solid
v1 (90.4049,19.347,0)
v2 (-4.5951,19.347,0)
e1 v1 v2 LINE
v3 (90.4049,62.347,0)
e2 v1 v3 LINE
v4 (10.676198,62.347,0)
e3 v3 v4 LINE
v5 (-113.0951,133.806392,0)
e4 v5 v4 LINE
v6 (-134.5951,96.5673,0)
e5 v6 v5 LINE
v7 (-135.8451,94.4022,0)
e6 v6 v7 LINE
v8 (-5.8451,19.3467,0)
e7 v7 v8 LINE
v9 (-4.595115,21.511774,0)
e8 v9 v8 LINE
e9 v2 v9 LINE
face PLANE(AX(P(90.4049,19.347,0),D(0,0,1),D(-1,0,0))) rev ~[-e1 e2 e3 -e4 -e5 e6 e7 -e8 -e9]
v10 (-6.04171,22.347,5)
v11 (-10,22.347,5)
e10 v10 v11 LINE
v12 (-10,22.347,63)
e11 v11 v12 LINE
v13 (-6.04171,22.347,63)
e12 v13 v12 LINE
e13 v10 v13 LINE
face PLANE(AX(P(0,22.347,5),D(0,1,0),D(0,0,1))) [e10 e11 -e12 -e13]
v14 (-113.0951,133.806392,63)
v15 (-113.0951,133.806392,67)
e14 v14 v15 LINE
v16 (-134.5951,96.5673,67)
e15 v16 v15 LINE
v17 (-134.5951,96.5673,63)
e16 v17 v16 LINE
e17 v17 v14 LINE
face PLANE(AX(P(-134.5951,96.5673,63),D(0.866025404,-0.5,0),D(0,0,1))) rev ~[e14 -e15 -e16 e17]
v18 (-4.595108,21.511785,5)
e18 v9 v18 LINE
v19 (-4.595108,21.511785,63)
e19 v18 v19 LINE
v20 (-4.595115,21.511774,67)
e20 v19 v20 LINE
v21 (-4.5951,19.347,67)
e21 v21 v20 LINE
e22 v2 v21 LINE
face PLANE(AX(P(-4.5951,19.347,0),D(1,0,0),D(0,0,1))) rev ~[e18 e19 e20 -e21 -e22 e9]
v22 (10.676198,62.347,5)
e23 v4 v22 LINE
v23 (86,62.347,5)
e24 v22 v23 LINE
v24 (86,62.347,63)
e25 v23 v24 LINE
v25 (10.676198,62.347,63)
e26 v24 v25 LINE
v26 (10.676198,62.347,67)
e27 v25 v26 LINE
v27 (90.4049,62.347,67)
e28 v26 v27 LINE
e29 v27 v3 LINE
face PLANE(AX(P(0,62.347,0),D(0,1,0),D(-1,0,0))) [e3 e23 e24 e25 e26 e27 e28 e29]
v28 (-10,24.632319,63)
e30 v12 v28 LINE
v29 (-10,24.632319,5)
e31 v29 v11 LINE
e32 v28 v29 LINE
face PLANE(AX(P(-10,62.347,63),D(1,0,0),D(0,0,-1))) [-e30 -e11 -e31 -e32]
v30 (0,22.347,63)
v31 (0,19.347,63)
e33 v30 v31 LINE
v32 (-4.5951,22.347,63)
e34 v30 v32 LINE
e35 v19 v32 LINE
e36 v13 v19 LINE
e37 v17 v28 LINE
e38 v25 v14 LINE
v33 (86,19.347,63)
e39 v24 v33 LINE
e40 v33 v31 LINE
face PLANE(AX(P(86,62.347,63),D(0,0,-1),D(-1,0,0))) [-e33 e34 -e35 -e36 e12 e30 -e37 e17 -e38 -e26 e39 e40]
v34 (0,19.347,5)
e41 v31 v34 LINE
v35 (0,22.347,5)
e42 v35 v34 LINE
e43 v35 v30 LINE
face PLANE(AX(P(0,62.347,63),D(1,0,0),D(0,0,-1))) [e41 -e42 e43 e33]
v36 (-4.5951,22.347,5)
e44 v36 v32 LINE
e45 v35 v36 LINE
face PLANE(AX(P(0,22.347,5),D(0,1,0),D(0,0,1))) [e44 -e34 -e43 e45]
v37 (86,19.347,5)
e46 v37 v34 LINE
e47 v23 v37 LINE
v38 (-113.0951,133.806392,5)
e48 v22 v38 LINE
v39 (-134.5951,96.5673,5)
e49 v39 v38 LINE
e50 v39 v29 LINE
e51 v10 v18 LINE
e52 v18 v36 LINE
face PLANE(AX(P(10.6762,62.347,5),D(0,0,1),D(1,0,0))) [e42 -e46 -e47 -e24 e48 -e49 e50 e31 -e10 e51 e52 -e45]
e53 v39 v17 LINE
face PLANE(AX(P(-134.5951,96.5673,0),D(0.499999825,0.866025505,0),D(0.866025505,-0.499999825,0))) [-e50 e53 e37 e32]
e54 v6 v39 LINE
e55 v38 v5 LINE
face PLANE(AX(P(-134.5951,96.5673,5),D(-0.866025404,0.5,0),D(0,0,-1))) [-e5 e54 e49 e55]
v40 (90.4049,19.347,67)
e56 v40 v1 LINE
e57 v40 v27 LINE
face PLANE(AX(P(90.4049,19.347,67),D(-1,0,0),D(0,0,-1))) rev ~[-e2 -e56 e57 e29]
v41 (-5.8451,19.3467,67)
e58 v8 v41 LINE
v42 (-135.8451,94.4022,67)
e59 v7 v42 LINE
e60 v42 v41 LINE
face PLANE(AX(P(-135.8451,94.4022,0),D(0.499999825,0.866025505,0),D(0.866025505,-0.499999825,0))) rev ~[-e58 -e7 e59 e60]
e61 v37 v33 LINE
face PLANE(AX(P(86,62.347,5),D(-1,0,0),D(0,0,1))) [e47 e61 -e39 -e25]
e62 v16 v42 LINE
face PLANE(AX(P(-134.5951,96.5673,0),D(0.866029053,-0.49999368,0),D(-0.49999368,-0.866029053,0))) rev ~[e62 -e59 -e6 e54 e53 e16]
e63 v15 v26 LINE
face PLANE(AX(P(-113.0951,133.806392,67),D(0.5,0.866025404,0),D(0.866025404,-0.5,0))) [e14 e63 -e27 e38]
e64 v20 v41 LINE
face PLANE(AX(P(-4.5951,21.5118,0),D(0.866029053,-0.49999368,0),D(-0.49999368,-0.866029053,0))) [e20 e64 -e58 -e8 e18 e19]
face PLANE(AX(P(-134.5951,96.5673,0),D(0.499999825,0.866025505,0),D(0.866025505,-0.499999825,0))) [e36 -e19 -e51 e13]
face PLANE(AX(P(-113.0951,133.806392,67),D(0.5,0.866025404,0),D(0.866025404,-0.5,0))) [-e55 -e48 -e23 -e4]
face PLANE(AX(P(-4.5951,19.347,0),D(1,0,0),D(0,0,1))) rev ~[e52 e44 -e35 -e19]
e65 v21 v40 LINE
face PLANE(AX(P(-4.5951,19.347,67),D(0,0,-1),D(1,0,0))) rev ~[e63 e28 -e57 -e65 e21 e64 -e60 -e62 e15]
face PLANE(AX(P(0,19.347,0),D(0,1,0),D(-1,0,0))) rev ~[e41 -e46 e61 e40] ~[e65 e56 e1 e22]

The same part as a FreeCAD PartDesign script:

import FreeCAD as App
import Part
import Sketcher
from FreeCAD import Vector
Q = App.Units.Quantity


def add_polygon(sketch, points):
    """Adds a closed chain of lines whose ends are joined by coincident constraints."""
    first, n = sketch.GeometryCount, len(points)
    for a, b in zip(points, points[1:] + points[:1]):
        sketch.addGeometry(Part.LineSegment(App.Vector(*a, 0), App.Vector(*b, 0)), False)
    for i in range(n):
        sketch.addConstraint(Sketcher.Constraint("Coincident", first + i, 2, first + (i + 1) % n, 1))

doc = App.newDocument("Part")
body = doc.addObject("PartDesign::Body", "Body")

sketch1 = body.newObject("Sketcher::SketchObject", "Sketch")
sketch1.AttachmentSupport = (doc.getObject("XY_Plane"), [""])
sketch1.MapMode = "FlatFace"
add_polygon(sketch1, [(-134.6, 96.6), (-135.8, 94.4), (-5.8, 19.3), (-4.6, 21.5)])
sketch1.addConstraint([
    Sketcher.Constraint("Perpendicular", 0, 1),
    Sketcher.Constraint("Perpendicular", 1, 2),
    Sketcher.Constraint("Perpendicular", 2, 3),
    Sketcher.Constraint("Angle", 1, Q("-30 deg")),
    Sketcher.Constraint("DistanceX", 0, 2, 1, 2, Q("130 mm")),
    Sketcher.Constraint("Distance", 0, Q("2.5 mm")),
    Sketcher.Constraint("DistanceX", 0, 2, -1, 1, Q("135.845 mm")),
    Sketcher.Constraint("DistanceY", -1, 1, 0, 2, Q("94.4022 mm")),
])
pad1 = body.newObject("PartDesign::Pad", "Pad")
pad1.Profile = sketch1
pad1.Length = 67

sketch2 = body.newObject("Sketcher::SketchObject", "Sketch001")
sketch2.Placement = App.Placement(Vector(-134.5951, 96.5673, 67), App.Rotation(Vector(0.866025404, -0.5, 0), Vector(0, 0, -1), Vector(0.5, 0.866025404, 0), "ZXY"))
add_polygon(sketch2, [(152, 4), (0, 4), (0, 0), (152, 0)])
sketch2.addConstraint([
    Sketcher.Constraint("Horizontal", 0),
    Sketcher.Constraint("Vertical", 1),
    Sketcher.Constraint("Horizontal", 2),
    Sketcher.Constraint("Vertical", 3),
    Sketcher.Constraint("Coincident", 1, 2, -1, 1),
    Sketcher.Constraint("DistanceX", 0, 2, 0, 1, Q("152 mm")),
    Sketcher.Constraint("DistanceY", 1, 2, 1, 1, Q("4 mm")),
])
pad2 = body.newObject("PartDesign::Pad", "Pad001")
pad2.Profile = sketch2
pad2.Length = 43

sketch3 = body.newObject("Sketcher::SketchObject", "Sketch002")
sketch3.Placement = App.Placement(Vector(-134.5951, 96.5673, 67), App.Rotation(Vector(0.866025404, -0.5, 0), Vector(0, 0, -1), Vector(0.5, 0.866025404, 0), "ZXY"))
add_polygon(sketch3, [(150, 67), (0, 67), (0, 62), (150, 62)])
sketch3.addConstraint([
    Sketcher.Constraint("Horizontal", 0),
    Sketcher.Constraint("Vertical", 1),
    Sketcher.Constraint("Horizontal", 2),
    Sketcher.Constraint("Vertical", 3),
    Sketcher.Constraint("PointOnObject", 0, 2, -2),
    Sketcher.Constraint("DistanceY", 1, 2, 1, 1, Q("5 mm")),
    Sketcher.Constraint("DistanceY", -1, 1, 0, 2, Q("67 mm")),
    Sketcher.Constraint("DistanceX", 0, 2, 0, 1, Q("150.111 mm")),
])
pad3 = body.newObject("PartDesign::Pad", "Pad002")
pad3.Profile = sketch3
pad3.Length = 43

sketch4 = body.newObject("Sketcher::SketchObject", "Sketch003")
sketch4.AttachmentSupport = (doc.getObject("XZ_Plane"), [""])
sketch4.MapMode = "FlatFace"
sketch4.AttachmentOffset = App.Placement(Vector(0, 0, -19.347), App.Rotation())
add_polygon(sketch4, [(-5, 0), (-5, 67), (90, 67), (90, 0)])
sketch4.addConstraint([
    Sketcher.Constraint("Vertical", 0),
    Sketcher.Constraint("Horizontal", 1),
    Sketcher.Constraint("Vertical", 2),
    Sketcher.Constraint("Horizontal", 3),
    Sketcher.Constraint("PointOnObject", 2, 2, -1),
    Sketcher.Constraint("DistanceX", 1, 1, 1, 2, Q("95 mm")),
    Sketcher.Constraint("DistanceY", 0, 1, 0, 2, Q("67 mm")),
    Sketcher.Constraint("DistanceX", 0, 2, -1, 1, Q("4.595 mm")),
])
pad4 = body.newObject("PartDesign::Pad", "Pad003")
pad4.Profile = sketch4
pad4.Length = 43
pad4.Reversed = True

sketch5 = body.newObject("Sketcher::SketchObject", "Sketch004")
sketch5.AttachmentSupport = (doc.getObject("XZ_Plane"), [""])
sketch5.MapMode = "FlatFace"
sketch5.AttachmentOffset = App.Placement(Vector(0, 0, -62.347), App.Rotation())
add_polygon(sketch5, [(86, 5), (0, 5), (0, 63), (86, 63)])
sketch5.addConstraint([
    Sketcher.Constraint("Horizontal", 0),
    Sketcher.Constraint("Vertical", 1),
    Sketcher.Constraint("Horizontal", 2),
    Sketcher.Constraint("Vertical", 3),
    Sketcher.Constraint("PointOnObject", 0, 2, -2),
    Sketcher.Constraint("DistanceX", 0, 2, 0, 1, Q("86 mm")),
    Sketcher.Constraint("DistanceY", 1, 1, 1, 2, Q("58 mm")),
    Sketcher.Constraint("DistanceY", -1, 1, 0, 2, Q("5 mm")),
])
pocket1 = body.newObject("PartDesign::Pocket", "Pocket")
pocket1.Profile = sketch5
pocket1.Type = "ThroughAll"
pocket1.Reversed = True

sketch6 = body.newObject("Sketcher::SketchObject", "Sketch005")
sketch6.AttachmentSupport = (doc.getObject("YZ_Plane"), [""])
sketch6.MapMode = "FlatFace"
add_polygon(sketch6, [(22, 5), (62, 5), (62, 63), (22, 63)])
sketch6.addConstraint([
    Sketcher.Constraint("Horizontal", 0),
    Sketcher.Constraint("Vertical", 1),
    Sketcher.Constraint("Horizontal", 2),
    Sketcher.Constraint("Vertical", 3),
    Sketcher.Constraint("DistanceX", 0, 1, 0, 2, Q("40 mm")),
    Sketcher.Constraint("DistanceY", 1, 1, 1, 2, Q("58 mm")),
    Sketcher.Constraint("DistanceY", -1, 1, 0, 2, Q("5 mm")),
    Sketcher.Constraint("DistanceX", -1, 1, 0, 2, Q("62.347 mm")),
])
pocket2 = body.newObject("PartDesign::Pocket", "Pocket001")
pocket2.Profile = sketch6
pocket2.Length = 10

doc.recompute()
